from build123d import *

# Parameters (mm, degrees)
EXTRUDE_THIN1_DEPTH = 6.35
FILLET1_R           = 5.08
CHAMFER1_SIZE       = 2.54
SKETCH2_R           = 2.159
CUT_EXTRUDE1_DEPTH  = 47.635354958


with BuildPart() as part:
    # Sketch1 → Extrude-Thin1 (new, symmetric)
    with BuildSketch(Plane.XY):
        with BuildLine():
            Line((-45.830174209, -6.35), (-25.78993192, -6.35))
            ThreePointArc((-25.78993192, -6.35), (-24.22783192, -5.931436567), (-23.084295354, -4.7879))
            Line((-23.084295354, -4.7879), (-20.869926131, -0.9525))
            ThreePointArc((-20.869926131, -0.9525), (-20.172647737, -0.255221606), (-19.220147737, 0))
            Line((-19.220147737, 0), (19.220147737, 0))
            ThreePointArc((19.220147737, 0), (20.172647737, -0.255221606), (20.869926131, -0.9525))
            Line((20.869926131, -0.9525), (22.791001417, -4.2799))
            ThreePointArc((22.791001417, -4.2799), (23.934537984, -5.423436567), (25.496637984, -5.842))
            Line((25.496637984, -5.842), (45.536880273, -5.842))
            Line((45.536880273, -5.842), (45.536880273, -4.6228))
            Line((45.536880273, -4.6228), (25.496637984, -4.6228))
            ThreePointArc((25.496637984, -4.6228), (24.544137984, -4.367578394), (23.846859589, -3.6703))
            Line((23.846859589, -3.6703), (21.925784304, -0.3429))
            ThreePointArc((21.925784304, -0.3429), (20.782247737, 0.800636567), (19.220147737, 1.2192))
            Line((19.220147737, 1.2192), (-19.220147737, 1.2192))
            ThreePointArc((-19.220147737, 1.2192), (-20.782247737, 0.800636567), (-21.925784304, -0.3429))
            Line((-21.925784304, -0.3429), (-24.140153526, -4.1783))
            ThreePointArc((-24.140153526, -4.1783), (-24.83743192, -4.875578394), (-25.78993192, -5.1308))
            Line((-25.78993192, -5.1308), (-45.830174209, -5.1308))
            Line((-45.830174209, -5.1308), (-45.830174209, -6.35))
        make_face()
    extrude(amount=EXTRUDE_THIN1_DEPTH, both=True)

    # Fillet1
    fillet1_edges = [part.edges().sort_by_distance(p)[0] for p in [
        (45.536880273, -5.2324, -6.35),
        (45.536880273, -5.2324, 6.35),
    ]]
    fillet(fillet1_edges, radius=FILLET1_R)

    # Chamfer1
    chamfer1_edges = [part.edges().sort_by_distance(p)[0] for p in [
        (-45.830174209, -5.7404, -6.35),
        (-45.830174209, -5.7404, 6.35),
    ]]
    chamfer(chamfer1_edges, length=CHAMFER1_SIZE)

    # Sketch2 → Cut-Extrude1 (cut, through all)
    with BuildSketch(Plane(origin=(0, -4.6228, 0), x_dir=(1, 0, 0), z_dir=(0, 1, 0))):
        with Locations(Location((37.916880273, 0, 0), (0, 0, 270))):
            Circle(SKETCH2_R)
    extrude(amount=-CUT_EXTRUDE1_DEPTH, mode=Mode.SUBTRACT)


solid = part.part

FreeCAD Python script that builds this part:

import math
import FreeCAD as App
import Part
import Sketcher

V = App.Vector
Q = App.Units.Quantity


def edges_at(feature, points):
    """Names of the edges that pass closest to the given points."""
    edges = feature.Shape.Edges
    near = lambda p: min(range(len(edges)), key=lambda i: edges[i].distToShape(Part.Vertex(*p))[0])
    return sorted({f"Edge{near(p) + 1}" for p in points})

doc = App.newDocument("Part")
body = doc.addObject("PartDesign::Body", "Body")

sketch1 = body.newObject("Sketcher::SketchObject", "Sketch")
sketch1.AttachmentSupport = (doc.getObject("XY_Plane"), [""])
sketch1.MapMode = "FlatFace"
sketch1.addGeometry([
    Part.LineSegment(V(-45.8, -6.3, 0), V(-25.8, -6.3, 0)),
    Part.ArcOfCircle(Part.Circle(V(-25.8, -3.2, 0), V(0, 0, 1), 3.1), math.radians(-90), math.radians(-30)),
    Part.LineSegment(V(-23.1, -4.8, 0), V(-20.9, -1, 0)),
    Part.ArcOfCircle(Part.Circle(V(-19.2, -1.9, 0), V(0, 0, 1), 1.9), math.radians(90), math.radians(150)),
    Part.LineSegment(V(-19.2, 0, 0), V(19.2, 0, 0)),
    Part.ArcOfCircle(Part.Circle(V(19.2, -1.9, 0), V(0, 0, 1), 1.9), math.radians(30), math.radians(90)),
    Part.LineSegment(V(20.9, -1, 0), V(22.8, -4.3, 0)),
    Part.ArcOfCircle(Part.Circle(V(25.5, -2.7, 0), V(0, 0, 1), 3.1), math.radians(-150), math.radians(-90)),
    Part.LineSegment(V(25.5, -5.8, 0), V(45.5, -5.8, 0)),
    Part.LineSegment(V(45.5, -5.8, 0), V(45.5, -4.6, 0)),
    Part.LineSegment(V(45.5, -4.6, 0), V(25.5, -4.6, 0)),
    Part.ArcOfCircle(Part.Circle(V(25.5, -2.7, 0), V(0, 0, 1), 1.9), math.radians(-150), math.radians(-90)),
    Part.LineSegment(V(23.8, -3.7, 0), V(21.9, -0.3, 0)),
    Part.ArcOfCircle(Part.Circle(V(19.2, -1.9, 0), V(0, 0, 1), 3.1), math.radians(30), math.radians(90)),
    Part.LineSegment(V(19.2, 1.2, 0), V(-19.2, 1.2, 0)),
    Part.ArcOfCircle(Part.Circle(V(-19.2, -1.9, 0), V(0, 0, 1), 3.1), math.radians(90), math.radians(150)),
    Part.LineSegment(V(-21.9, -0.3, 0), V(-24.1, -4.2, 0)),
    Part.ArcOfCircle(Part.Circle(V(-25.8, -3.2, 0), V(0, 0, 1), 1.9), math.radians(-90), math.radians(-30)),
    Part.LineSegment(V(-25.8, -5.1, 0), V(-45.8, -5.1, 0)),
    Part.LineSegment(V(-45.8, -5.1, 0), V(-45.8, -6.3, 0)),
], False)
sketch1.addConstraint([
    Sketcher.Constraint("Tangent", 0, 2, 1, 1),
    Sketcher.Constraint("Tangent", 1, 2, 2, 1),
    Sketcher.Constraint("Tangent", 2, 2, 3, 2),
    Sketcher.Constraint("Tangent", 3, 1, 4, 1),
    Sketcher.Constraint("Tangent", 4, 2, 5, 2),
    Sketcher.Constraint("Tangent", 5, 1, 6, 1),
    Sketcher.Constraint("Tangent", 6, 2, 7, 1),
    Sketcher.Constraint("Tangent", 7, 2, 8, 1),
    Sketcher.Constraint("Coincident", 8, 2, 9, 1),
    Sketcher.Constraint("Coincident", 9, 2, 10, 1),
    Sketcher.Constraint("Tangent", 10, 2, 11, 2),
    Sketcher.Constraint("Tangent", 11, 1, 12, 1),
    Sketcher.Constraint("Tangent", 12, 2, 13, 1),
    Sketcher.Constraint("Tangent", 13, 2, 14, 1),
    Sketcher.Constraint("Tangent", 14, 2, 15, 1),
    Sketcher.Constraint("Tangent", 15, 2, 16, 1),
    Sketcher.Constraint("Tangent", 16, 2, 17, 2),
    Sketcher.Constraint("Tangent", 17, 1, 18, 1),
    Sketcher.Constraint("Coincident", 18, 2, 19, 1),
    Sketcher.Constraint("Coincident", 19, 2, 0, 1),
    Sketcher.Constraint("Horizontal", 0),
    Sketcher.Constraint("Horizontal", 4),
    Sketcher.Constraint("Horizontal", 8),
    Sketcher.Constraint("Vertical", 9),
    Sketcher.Constraint("Horizontal", 10),
    Sketcher.Constraint("Horizontal", 14),
    Sketcher.Constraint("Horizontal", 18),
    Sketcher.Constraint("Vertical", 19),
    Sketcher.Constraint("Coincident", 11, 3, 7, 3),
    Sketcher.Constraint("Coincident", 13, 3, 5, 3),
    Sketcher.Constraint("Coincident", 15, 3, 3, 3),
    Sketcher.Constraint("Coincident", 17, 3, 1, 3),
    Sketcher.Constraint("Equal", 3, 5),
    Sketcher.Constraint("Equal", 1, 7),
    Sketcher.Constraint("Equal", 5, 11),
    Sketcher.Constraint("Equal", 7, 13),
    Sketcher.Constraint("Equal", 11, 17),
    Sketcher.Constraint("Symmetric", 3, 1, 4, 2, -1, 1),
    Sketcher.Constraint("Horizontal", 2, 2, 5, 1),
    Sketcher.Constraint("Equal", 0, 8),
    Sketcher.Constraint("Angle", 2, Q("60 deg")),
    Sketcher.Constraint("Radius", 1, Q("0.123 in")),
    Sketcher.Constraint("Radius", 3, Q("0.075 in")),
    Sketcher.Constraint("DistanceY", 0, 2, -1, 1, Q("0.25 in")),
    Sketcher.Constraint("DistanceY", 7, 2, -1, 1, Q("0.23 in")),
    Sketcher.Constraint("DistanceX", -1, 1, 6, 2, 22.791001),
    Sketcher.Constraint("DistanceX", 0, 1, 0, 2, 20.040242),
])
pad1 = body.newObject("PartDesign::Pad", "Pad")
pad1.Profile = sketch1
pad1.Length = Q("0.5 in")
pad1.Midplane = True
doc.recompute()

fillet = body.newObject("PartDesign::Fillet", "Fillet")
fillet.Base = (pad1, edges_at(pad1, [(45.537, -5.232, -6.35), (45.537, -5.232, 6.35)]))
fillet.Radius = Q("0.2 in")
doc.recompute()

chamfer = body.newObject("PartDesign::Chamfer", "Chamfer")
chamfer.Base = (fillet, edges_at(fillet, [(-45.83, -5.74, -6.35), (-45.83, -5.74, 6.35)]))
chamfer.Size = Q("0.1 in")

sketch2 = body.newObject("Sketcher::SketchObject", "Sketch001")
sketch2.AttachmentSupport = (doc.getObject("XZ_Plane"), [""])
sketch2.MapMode = "FlatFace"
sketch2.AttachmentOffset = App.Placement(V(0, 0, 0.182 * 25.4), App.Rotation())
sketch2.addGeometry(Part.Circle(V(37.9, 0, 0), V(0, 0, 1), 2.2), False)
sketch2.addConstraint([
    Sketcher.Constraint("PointOnObject", 0, 3, -1),
    Sketcher.Constraint("Diameter", 0, Q("0.17 in")),
    Sketcher.Constraint("DistanceX", -1, 1, 0, 3, 37.91688),
])
pocket1 = body.newObject("PartDesign::Pocket", "Pocket")
pocket1.Profile = sketch2
pocket1.Type = "ThroughAll"
pocket1.Reversed = True

doc.recompute()
